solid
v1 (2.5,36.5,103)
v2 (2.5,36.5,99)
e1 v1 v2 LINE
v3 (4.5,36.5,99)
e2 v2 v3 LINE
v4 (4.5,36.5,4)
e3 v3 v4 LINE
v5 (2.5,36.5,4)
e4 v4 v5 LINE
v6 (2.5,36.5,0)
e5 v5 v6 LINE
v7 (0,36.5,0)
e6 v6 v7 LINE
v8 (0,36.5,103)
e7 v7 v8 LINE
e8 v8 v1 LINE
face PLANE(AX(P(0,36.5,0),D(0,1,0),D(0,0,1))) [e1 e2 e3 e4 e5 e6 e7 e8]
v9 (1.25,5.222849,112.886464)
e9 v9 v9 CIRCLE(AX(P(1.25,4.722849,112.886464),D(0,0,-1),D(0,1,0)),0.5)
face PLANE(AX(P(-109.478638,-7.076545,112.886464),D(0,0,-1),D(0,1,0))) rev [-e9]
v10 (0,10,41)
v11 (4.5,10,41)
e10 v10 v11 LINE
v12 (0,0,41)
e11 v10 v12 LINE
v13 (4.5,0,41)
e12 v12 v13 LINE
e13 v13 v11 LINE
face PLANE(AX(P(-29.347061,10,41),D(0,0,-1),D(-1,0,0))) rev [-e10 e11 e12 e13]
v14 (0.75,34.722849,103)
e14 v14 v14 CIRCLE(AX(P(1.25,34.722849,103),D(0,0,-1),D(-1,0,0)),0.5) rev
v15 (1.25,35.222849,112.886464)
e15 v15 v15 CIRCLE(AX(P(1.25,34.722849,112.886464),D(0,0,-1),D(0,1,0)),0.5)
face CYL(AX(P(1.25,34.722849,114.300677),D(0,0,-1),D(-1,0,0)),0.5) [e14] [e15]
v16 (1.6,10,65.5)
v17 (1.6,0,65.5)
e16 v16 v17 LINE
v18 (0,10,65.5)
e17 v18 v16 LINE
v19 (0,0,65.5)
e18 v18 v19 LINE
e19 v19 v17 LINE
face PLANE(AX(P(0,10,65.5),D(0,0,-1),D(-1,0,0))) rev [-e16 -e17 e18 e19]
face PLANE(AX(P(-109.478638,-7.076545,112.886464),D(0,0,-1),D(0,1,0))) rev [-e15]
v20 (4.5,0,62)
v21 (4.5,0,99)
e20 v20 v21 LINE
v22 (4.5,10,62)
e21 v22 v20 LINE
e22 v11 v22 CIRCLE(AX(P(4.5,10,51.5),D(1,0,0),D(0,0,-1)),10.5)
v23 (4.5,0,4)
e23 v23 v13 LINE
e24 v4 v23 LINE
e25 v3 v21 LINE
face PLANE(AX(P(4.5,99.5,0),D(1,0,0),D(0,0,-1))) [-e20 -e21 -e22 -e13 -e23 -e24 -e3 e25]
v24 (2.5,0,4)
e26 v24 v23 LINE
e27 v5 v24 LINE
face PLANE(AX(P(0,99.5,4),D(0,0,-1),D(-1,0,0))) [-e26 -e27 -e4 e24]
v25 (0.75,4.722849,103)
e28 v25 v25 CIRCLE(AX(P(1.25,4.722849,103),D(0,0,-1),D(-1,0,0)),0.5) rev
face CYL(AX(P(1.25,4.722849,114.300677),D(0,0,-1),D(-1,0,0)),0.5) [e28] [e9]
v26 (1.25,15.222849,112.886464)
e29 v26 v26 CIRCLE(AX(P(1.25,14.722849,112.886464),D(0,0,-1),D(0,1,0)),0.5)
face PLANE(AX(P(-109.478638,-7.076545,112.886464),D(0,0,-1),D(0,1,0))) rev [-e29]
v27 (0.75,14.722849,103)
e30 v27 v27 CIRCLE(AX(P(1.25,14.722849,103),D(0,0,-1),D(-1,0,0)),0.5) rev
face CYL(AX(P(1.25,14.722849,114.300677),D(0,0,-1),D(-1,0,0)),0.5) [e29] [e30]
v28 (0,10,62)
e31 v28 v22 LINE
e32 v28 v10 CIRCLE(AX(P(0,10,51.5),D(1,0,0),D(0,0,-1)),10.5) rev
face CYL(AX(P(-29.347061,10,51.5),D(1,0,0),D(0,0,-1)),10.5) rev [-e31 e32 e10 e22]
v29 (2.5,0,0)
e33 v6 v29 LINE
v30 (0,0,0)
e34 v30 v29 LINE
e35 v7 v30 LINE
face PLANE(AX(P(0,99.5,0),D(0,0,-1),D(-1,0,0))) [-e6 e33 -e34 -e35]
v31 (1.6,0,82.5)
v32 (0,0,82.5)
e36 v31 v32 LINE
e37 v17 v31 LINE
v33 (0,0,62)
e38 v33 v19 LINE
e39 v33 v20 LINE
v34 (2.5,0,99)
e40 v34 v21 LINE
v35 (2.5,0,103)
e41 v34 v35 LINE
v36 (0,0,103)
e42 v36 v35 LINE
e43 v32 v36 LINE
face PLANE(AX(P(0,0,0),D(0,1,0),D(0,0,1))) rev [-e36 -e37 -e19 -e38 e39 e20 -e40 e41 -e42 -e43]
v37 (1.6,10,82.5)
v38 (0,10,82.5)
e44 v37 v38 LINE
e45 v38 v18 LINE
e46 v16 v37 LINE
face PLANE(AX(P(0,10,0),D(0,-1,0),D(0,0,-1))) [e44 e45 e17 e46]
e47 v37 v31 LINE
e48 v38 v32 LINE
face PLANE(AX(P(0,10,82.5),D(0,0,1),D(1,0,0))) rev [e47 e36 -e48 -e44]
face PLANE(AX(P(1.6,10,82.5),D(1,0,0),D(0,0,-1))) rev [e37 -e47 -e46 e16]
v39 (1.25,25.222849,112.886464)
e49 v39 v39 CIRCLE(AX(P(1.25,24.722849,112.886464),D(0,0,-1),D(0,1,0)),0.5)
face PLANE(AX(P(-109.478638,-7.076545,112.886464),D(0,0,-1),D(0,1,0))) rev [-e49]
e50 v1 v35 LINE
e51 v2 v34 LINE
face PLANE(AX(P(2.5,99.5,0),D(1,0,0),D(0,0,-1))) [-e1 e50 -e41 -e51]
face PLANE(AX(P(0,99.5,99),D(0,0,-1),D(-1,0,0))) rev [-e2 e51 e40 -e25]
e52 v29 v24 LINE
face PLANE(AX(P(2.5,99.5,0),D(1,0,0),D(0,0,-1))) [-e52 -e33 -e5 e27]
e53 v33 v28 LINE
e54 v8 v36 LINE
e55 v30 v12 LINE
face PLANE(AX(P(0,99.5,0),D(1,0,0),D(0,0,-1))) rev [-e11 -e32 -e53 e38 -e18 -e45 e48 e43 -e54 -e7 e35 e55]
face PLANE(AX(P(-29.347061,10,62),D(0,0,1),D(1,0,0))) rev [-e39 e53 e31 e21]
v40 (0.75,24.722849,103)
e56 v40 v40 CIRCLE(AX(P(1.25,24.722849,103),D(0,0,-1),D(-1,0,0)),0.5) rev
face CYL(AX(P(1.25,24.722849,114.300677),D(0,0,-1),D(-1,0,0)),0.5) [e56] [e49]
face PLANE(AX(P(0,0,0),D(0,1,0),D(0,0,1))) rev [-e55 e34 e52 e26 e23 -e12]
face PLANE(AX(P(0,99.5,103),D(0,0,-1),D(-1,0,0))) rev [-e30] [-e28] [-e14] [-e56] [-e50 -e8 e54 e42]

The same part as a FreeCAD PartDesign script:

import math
import FreeCAD as App
import Part
import Sketcher
from FreeCAD import Vector
Q = App.Units.Quantity

doc = App.newDocument("Part")
body = doc.addObject("PartDesign::Body", "Body")

sketch1 = doc.addObject("Sketcher::SketchObject", "Sketch")
body.addObject(sketch1)
sketch1.AttachmentSupport = (doc.XZ_Plane, [""])
sketch1.MapMode = "FlatFace"
sketch1.addGeometry(Part.LineSegment(Vector(0, 0, 0), Vector(0, 103, 0)), False)
sketch1.addGeometry(Part.LineSegment(Vector(0, 103, 0), Vector(2.5, 103, 0)), False)
sketch1.addGeometry(Part.LineSegment(Vector(2.5, 103, 0), Vector(2.5, 99, 0)), False)
sketch1.addGeometry(Part.LineSegment(Vector(2.5, 99, 0), Vector(4.5, 99, 0)), False)
sketch1.addGeometry(Part.LineSegment(Vector(4.5, 99, 0), Vector(4.5, 4, 0)), False)
sketch1.addGeometry(Part.LineSegment(Vector(4.5, 4, 0), Vector(2.5, 4, 0)), False)
sketch1.addGeometry(Part.LineSegment(Vector(2.5, 4, 0), Vector(2.5, 0, 0)), False)
sketch1.addGeometry(Part.LineSegment(Vector(2.5, 0, 0), Vector(0, 0, 0)), False)
sketch1.addConstraint(Sketcher.Constraint("Coincident", 0, 2, 1, 1))
sketch1.addConstraint(Sketcher.Constraint("Coincident", 1, 2, 2, 1))
sketch1.addConstraint(Sketcher.Constraint("Coincident", 2, 2, 3, 1))
sketch1.addConstraint(Sketcher.Constraint("Coincident", 3, 2, 4, 1))
sketch1.addConstraint(Sketcher.Constraint("Coincident", 4, 2, 5, 1))
sketch1.addConstraint(Sketcher.Constraint("Coincident", 5, 2, 6, 1))
sketch1.addConstraint(Sketcher.Constraint("Coincident", 6, 2, 7, 1))
sketch1.addConstraint(Sketcher.Constraint("Coincident", 7, 2, 0, 1))
sketch1.addConstraint(Sketcher.Constraint("Vertical", 0))
sketch1.addConstraint(Sketcher.Constraint("Horizontal", 1))
sketch1.addConstraint(Sketcher.Constraint("Vertical", 2))
sketch1.addConstraint(Sketcher.Constraint("Horizontal", 3))
sketch1.addConstraint(Sketcher.Constraint("Vertical", 4))
sketch1.addConstraint(Sketcher.Constraint("Horizontal", 5))
sketch1.addConstraint(Sketcher.Constraint("Vertical", 6))
sketch1.addConstraint(Sketcher.Constraint("Horizontal", 7))
sketch1.addConstraint(Sketcher.Constraint("Coincident", 7, 2, -1, 1))
sketch1.addConstraint(Sketcher.Constraint("Vertical", 2, 2, 5, 2))
sketch1.addConstraint(Sketcher.Constraint("Equal", 2, 6))
sketch1.addConstraint(Sketcher.Constraint("DistanceX", 3, 1, 3, 2, Q("2 mm")))
sketch1.addConstraint(Sketcher.Constraint("DistanceY", 0, 1, 0, 2, Q("103 mm")))
sketch1.addConstraint(Sketcher.Constraint("DistanceY", 2, 2, 2, 1, Q("4 mm")))
sketch1.addConstraint(Sketcher.Constraint("DistanceX", 1, 1, 1, 2, Q("2.5 mm")))
pad1 = doc.addObject("PartDesign::Pad", "Pad")
body.addObject(pad1)
pad1.Profile = sketch1
pad1.Length = 99.5
pad1.Reversed = True

sketch2 = doc.addObject("Sketcher::SketchObject", "Sketch001")
body.addObject(sketch2)
sketch2.AttachmentSupport = (doc.YZ_Plane, [""])
sketch2.MapMode = "FlatFace"
sketch2.AttachmentOffset = App.Placement(Vector(0, 0, 4.5), App.Rotation())
sketch2.addGeometry(Part.LineSegment(Vector(10, 62, 0), Vector(0, 62, 0)), False)
sketch2.addGeometry(Part.LineSegment(Vector(0, 62, 0), Vector(0, 41, 0)), False)
sketch2.addGeometry(Part.LineSegment(Vector(0, 41, 0), Vector(10, 41, 0)), False)
sketch2.addGeometry(Part.ArcOfCircle(Part.Circle(Vector(10, 52, 0), Vector(0, 0, 1), 10), math.radians(-90), math.radians(90)), False)
sketch2.addConstraint(Sketcher.Constraint("Coincident", 0, 2, 1, 1))
sketch2.addConstraint(Sketcher.Constraint("Coincident", 1, 2, 2, 1))
sketch2.addConstraint(Sketcher.Constraint("Tangent", 2, 2, 3, 1))
sketch2.addConstraint(Sketcher.Constraint("Tangent", 3, 2, 0, 1))
sketch2.addConstraint(Sketcher.Constraint("Horizontal", 0))
sketch2.addConstraint(Sketcher.Constraint("Vertical", 1))
sketch2.addConstraint(Sketcher.Constraint("Horizontal", 2))
sketch2.addConstraint(Sketcher.Constraint("PointOnObject", 0, 2, -2))
sketch2.addConstraint(Sketcher.Constraint("Radius", 3, Q("10.5 mm")))
sketch2.addConstraint(Sketcher.Constraint("DistanceX", 0, 2, 0, 1, Q("10 mm")))
sketch2.addConstraint(Sketcher.Constraint("DistanceY", -1, 1, 0, 2, Q("62 mm")))
pocket1 = doc.addObject("PartDesign::Pocket", "Pocket")
body.addObject(pocket1)
pocket1.Profile = sketch2
pocket1.Length = 4.5

sketch3 = doc.addObject("Sketcher::SketchObject", "Sketch002")
body.addObject(sketch3)
sketch3.AttachmentSupport = (doc.XZ_Plane, [""])
sketch3.MapMode = "FlatFace"
sketch3.AttachmentOffset = App.Placement(Vector(0, 0, -99.5), App.Rotation())
sketch3.addGeometry(Part.LineSegment(Vector(2.5, 4, 0), Vector(2.5, 0, 0)), False)
sketch3.addGeometry(Part.LineSegment(Vector(2.5, 0, 0), Vector(0, 0, 0)), False)
sketch3.addGeometry(Part.LineSegment(Vector(0, 0, 0), Vector(0, 103, 0)), False)
sketch3.addGeometry(Part.LineSegment(Vector(0, 103, 0), Vector(2.5, 103, 0)), False)
sketch3.addGeometry(Part.LineSegment(Vector(2.5, 103, 0), Vector(2.5, 99, 0)), False)
sketch3.addGeometry(Part.LineSegment(Vector(2.5, 99, 0), Vector(4.5, 99, 0)), False)
sketch3.addGeometry(Part.LineSegment(Vector(4.5, 99, 0), Vector(4.5, 4, 0)), False)
sketch3.addGeometry(Part.LineSegment(Vector(4.5, 4, 0), Vector(2.5, 4, 0)), False)
sketch3.addConstraint(Sketcher.Constraint("Coincident", 0, 2, 1, 1))
sketch3.addConstraint(Sketcher.Constraint("Coincident", 1, 2, 2, 1))
sketch3.addConstraint(Sketcher.Constraint("Coincident", 2, 2, 3, 1))
sketch3.addConstraint(Sketcher.Constraint("Coincident", 3, 2, 4, 1))
sketch3.addConstraint(Sketcher.Constraint("Coincident", 4, 2, 5, 1))
sketch3.addConstraint(Sketcher.Constraint("Coincident", 5, 2, 6, 1))
sketch3.addConstraint(Sketcher.Constraint("Coincident", 6, 2, 7, 1))
sketch3.addConstraint(Sketcher.Constraint("Coincident", 7, 2, 0, 1))
sketch3.addConstraint(Sketcher.Constraint("Vertical", 0))
sketch3.addConstraint(Sketcher.Constraint("Horizontal", 1))
sketch3.addConstraint(Sketcher.Constraint("Vertical", 2))
sketch3.addConstraint(Sketcher.Constraint("Horizontal", 3))
sketch3.addConstraint(Sketcher.Constraint("Vertical", 4))
sketch3.addConstraint(Sketcher.Constraint("Horizontal", 5))
sketch3.addConstraint(Sketcher.Constraint("Vertical", 6))
sketch3.addConstraint(Sketcher.Constraint("Horizontal", 7))
sketch3.addConstraint(Sketcher.Constraint("Coincident", 1, 2, -1, 1))
sketch3.addConstraint(Sketcher.Constraint("Vertical", 0, 2, 3, 2))
sketch3.addConstraint(Sketcher.Constraint("Equal", 0, 4))
sketch3.addConstraint(Sketcher.Constraint("DistanceX", 5, 1, 5, 2, Q("2 mm")))
sketch3.addConstraint(Sketcher.Constraint("DistanceY", 0, 2, 0, 1, Q("4 mm")))
sketch3.addConstraint(Sketcher.Constraint("DistanceY", 2, 1, 2, 2, Q("103 mm")))
sketch3.addConstraint(Sketcher.Constraint("DistanceX", 1, 2, 1, 1, Q("2.5 mm")))
pocket2 = doc.addObject("PartDesign::Pocket", "Pocket001")
body.addObject(pocket2)
pocket2.Profile = sketch3
pocket2.Length = 58.5
pocket2.Reversed = True

sketch4 = doc.addObject("Sketcher::SketchObject", "Sketch003")
body.addObject(sketch4)
sketch4.AttachmentSupport = (doc.XZ_Plane, [""])
sketch4.MapMode = "FlatFace"
sketch4.AttachmentOffset = App.Placement(Vector(0, 0, -41), App.Rotation())
sketch4.addGeometry(Part.LineSegment(Vector(4.5, 4, 0), Vector(2.5, 4, 0)), False)
sketch4.addGeometry(Part.LineSegment(Vector(2.5, 4, 0), Vector(2.5, 0, 0)), False)
sketch4.addGeometry(Part.LineSegment(Vector(2.5, 0, 0), Vector(0, 0, 0)), False)
sketch4.addGeometry(Part.LineSegment(Vector(0, 0, 0), Vector(0, 103, 0)), False)
sketch4.addGeometry(Part.LineSegment(Vector(0, 103, 0), Vector(2.5, 103, 0)), False)
sketch4.addGeometry(Part.LineSegment(Vector(2.5, 103, 0), Vector(2.5, 99, 0)), False)
sketch4.addGeometry(Part.LineSegment(Vector(2.5, 99, 0), Vector(4.5, 99, 0)), False)
sketch4.addGeometry(Part.LineSegment(Vector(4.5, 99, 0), Vector(4.5, 4, 0)), False)
sketch4.addConstraint(Sketcher.Constraint("Coincident", 0, 2, 1, 1))
sketch4.addConstraint(Sketcher.Constraint("Coincident", 1, 2, 2, 1))
sketch4.addConstraint(Sketcher.Constraint("Coincident", 2, 2, 3, 1))
sketch4.addConstraint(Sketcher.Constraint("Coincident", 3, 2, 4, 1))
sketch4.addConstraint(Sketcher.Constraint("Coincident", 4, 2, 5, 1))
sketch4.addConstraint(Sketcher.Constraint("Coincident", 5, 2, 6, 1))
sketch4.addConstraint(Sketcher.Constraint("Coincident", 6, 2, 7, 1))
sketch4.addConstraint(Sketcher.Constraint("Coincident", 7, 2, 0, 1))
sketch4.addConstraint(Sketcher.Constraint("Horizontal", 0))
sketch4.addConstraint(Sketcher.Constraint("Vertical", 1))
sketch4.addConstraint(Sketcher.Constraint("Horizontal", 2))
sketch4.addConstraint(Sketcher.Constraint("Vertical", 3))
sketch4.addConstraint(Sketcher.Constraint("Horizontal", 4))
sketch4.addConstraint(Sketcher.Constraint("Vertical", 5))
sketch4.addConstraint(Sketcher.Constraint("Horizontal", 6))
sketch4.addConstraint(Sketcher.Constraint("Vertical", 7))
sketch4.addConstraint(Sketcher.Constraint("Coincident", 2, 2, -1, 1))
sketch4.addConstraint(Sketcher.Constraint("Vertical", 1, 2, 4, 2))
sketch4.addConstraint(Sketcher.Constraint("Equal", 1, 5))
sketch4.addConstraint(Sketcher.Constraint("DistanceX", 0, 2, 0, 1, Q("2 mm")))
sketch4.addConstraint(Sketcher.Constraint("DistanceY", 1, 2, 1, 1, Q("4 mm")))
sketch4.addConstraint(Sketcher.Constraint("DistanceY", 3, 1, 3, 2, Q("103 mm")))
sketch4.addConstraint(Sketcher.Constraint("DistanceX", 2, 2, 2, 1, Q("2.5 mm")))
pocket3 = doc.addObject("PartDesign::Pocket", "Pocket002")
body.addObject(pocket3)
pocket3.Profile = sketch4
pocket3.Length = 4.5
pocket3.Reversed = True

sketch5 = doc.addObject("Sketcher::SketchObject", "Sketch004")
body.addObject(sketch5)
sketch5.AttachmentSupport = (doc.XZ_Plane, [""])
sketch5.MapMode = "FlatFace"
sketch5.addGeometry(Part.LineSegment(Vector(0, 82.5, 0), Vector(0, 65.5, 0)), False)
sketch5.addGeometry(Part.LineSegment(Vector(0, 65.5, 0), Vector(1.6, 65.5, 0)), False)
sketch5.addGeometry(Part.LineSegment(Vector(1.6, 65.5, 0), Vector(1.6, 82.5, 0)), False)
sketch5.addGeometry(Part.LineSegment(Vector(1.6, 82.5, 0), Vector(0, 82.5, 0)), False)
sketch5.addConstraint(Sketcher.Constraint("Coincident", 0, 2, 1, 1))
sketch5.addConstraint(Sketcher.Constraint("Coincident", 1, 2, 2, 1))
sketch5.addConstraint(Sketcher.Constraint("Coincident", 2, 2, 3, 1))
sketch5.addConstraint(Sketcher.Constraint("Coincident", 3, 2, 0, 1))
sketch5.addConstraint(Sketcher.Constraint("Vertical", 0))
sketch5.addConstraint(Sketcher.Constraint("Horizontal", 1))
sketch5.addConstraint(Sketcher.Constraint("Vertical", 2))
sketch5.addConstraint(Sketcher.Constraint("Horizontal", 3))
sketch5.addConstraint(Sketcher.Constraint("PointOnObject", 0, 2, -2))
sketch5.addConstraint(Sketcher.Constraint("DistanceY", 0, 2, 0, 1, Q("17 mm")))
sketch5.addConstraint(Sketcher.Constraint("DistanceX", 1, 1, 1, 2, Q("1.6 mm")))
sketch5.addConstraint(Sketcher.Constraint("DistanceY", -1, 1, 0, 2, Q("65.5 mm")))
pocket4 = doc.addObject("PartDesign::Pocket", "Pocket003")
body.addObject(pocket4)
pocket4.Profile = sketch5
pocket4.Length = 10

sketch6 = doc.addObject("Sketcher::SketchObject", "Sketch005")
body.addObject(sketch6)
sketch6.AttachmentSupport = (doc.XY_Plane, [""])
sketch6.MapMode = "FlatFace"
sketch6.AttachmentOffset = App.Placement(Vector(0, 0, 103), App.Rotation())
sketch6.addGeometry(Part.Circle(Vector(1.2, 34.7, 0), Vector(0, 0, 1), 0.5), False)
sketch6.addGeometry(Part.Circle(Vector(1.2, 24.7, 0), Vector(0, 0, 1), 0.5), False)
sketch6.addGeometry(Part.Circle(Vector(1.2, 14.7, 0), Vector(0, 0, 1), 0.5), False)
sketch6.addGeometry(Part.Circle(Vector(1.2, 4.7, 0), Vector(0, 0, 1), 0.5), False)
sketch6.addConstraint(Sketcher.Constraint("Equal", 0, 1))
sketch6.addConstraint(Sketcher.Constraint("Equal", 1, 2))
sketch6.addConstraint(Sketcher.Constraint("Equal", 2, 3))
sketch6.addConstraint(Sketcher.Constraint("Vertical", 0, 3, 1, 3))
sketch6.addConstraint(Sketcher.Constraint("Vertical", 1, 3, 2, 3))
sketch6.addConstraint(Sketcher.Constraint("Vertical", 2, 3, 3, 3))
sketch6.addConstraint(Sketcher.Constraint("Diameter", 0, Q("1 mm")))
sketch6.addConstraint(Sketcher.Constraint("DistanceY", 1, 3, 0, 3, Q("10 mm")))
sketch6.addConstraint(Sketcher.Constraint("DistanceY", 2, 3, 1, 3, Q("10 mm")))
sketch6.addConstraint(Sketcher.Constraint("DistanceY", 3, 3, 2, 3, Q("10 mm")))
sketch6.addConstraint(Sketcher.Constraint("DistanceX", -1, 1, 0, 3, Q("1.25 mm")))
sketch6.addConstraint(Sketcher.Constraint("DistanceY", -1, 1, 0, 3, Q("34.722849 mm")))
pad2 = doc.addObject("PartDesign::Pad", "Pad001")
body.addObject(pad2)
pad2.Profile = sketch6
pad2.Length = 9.886464

doc.recompute()
